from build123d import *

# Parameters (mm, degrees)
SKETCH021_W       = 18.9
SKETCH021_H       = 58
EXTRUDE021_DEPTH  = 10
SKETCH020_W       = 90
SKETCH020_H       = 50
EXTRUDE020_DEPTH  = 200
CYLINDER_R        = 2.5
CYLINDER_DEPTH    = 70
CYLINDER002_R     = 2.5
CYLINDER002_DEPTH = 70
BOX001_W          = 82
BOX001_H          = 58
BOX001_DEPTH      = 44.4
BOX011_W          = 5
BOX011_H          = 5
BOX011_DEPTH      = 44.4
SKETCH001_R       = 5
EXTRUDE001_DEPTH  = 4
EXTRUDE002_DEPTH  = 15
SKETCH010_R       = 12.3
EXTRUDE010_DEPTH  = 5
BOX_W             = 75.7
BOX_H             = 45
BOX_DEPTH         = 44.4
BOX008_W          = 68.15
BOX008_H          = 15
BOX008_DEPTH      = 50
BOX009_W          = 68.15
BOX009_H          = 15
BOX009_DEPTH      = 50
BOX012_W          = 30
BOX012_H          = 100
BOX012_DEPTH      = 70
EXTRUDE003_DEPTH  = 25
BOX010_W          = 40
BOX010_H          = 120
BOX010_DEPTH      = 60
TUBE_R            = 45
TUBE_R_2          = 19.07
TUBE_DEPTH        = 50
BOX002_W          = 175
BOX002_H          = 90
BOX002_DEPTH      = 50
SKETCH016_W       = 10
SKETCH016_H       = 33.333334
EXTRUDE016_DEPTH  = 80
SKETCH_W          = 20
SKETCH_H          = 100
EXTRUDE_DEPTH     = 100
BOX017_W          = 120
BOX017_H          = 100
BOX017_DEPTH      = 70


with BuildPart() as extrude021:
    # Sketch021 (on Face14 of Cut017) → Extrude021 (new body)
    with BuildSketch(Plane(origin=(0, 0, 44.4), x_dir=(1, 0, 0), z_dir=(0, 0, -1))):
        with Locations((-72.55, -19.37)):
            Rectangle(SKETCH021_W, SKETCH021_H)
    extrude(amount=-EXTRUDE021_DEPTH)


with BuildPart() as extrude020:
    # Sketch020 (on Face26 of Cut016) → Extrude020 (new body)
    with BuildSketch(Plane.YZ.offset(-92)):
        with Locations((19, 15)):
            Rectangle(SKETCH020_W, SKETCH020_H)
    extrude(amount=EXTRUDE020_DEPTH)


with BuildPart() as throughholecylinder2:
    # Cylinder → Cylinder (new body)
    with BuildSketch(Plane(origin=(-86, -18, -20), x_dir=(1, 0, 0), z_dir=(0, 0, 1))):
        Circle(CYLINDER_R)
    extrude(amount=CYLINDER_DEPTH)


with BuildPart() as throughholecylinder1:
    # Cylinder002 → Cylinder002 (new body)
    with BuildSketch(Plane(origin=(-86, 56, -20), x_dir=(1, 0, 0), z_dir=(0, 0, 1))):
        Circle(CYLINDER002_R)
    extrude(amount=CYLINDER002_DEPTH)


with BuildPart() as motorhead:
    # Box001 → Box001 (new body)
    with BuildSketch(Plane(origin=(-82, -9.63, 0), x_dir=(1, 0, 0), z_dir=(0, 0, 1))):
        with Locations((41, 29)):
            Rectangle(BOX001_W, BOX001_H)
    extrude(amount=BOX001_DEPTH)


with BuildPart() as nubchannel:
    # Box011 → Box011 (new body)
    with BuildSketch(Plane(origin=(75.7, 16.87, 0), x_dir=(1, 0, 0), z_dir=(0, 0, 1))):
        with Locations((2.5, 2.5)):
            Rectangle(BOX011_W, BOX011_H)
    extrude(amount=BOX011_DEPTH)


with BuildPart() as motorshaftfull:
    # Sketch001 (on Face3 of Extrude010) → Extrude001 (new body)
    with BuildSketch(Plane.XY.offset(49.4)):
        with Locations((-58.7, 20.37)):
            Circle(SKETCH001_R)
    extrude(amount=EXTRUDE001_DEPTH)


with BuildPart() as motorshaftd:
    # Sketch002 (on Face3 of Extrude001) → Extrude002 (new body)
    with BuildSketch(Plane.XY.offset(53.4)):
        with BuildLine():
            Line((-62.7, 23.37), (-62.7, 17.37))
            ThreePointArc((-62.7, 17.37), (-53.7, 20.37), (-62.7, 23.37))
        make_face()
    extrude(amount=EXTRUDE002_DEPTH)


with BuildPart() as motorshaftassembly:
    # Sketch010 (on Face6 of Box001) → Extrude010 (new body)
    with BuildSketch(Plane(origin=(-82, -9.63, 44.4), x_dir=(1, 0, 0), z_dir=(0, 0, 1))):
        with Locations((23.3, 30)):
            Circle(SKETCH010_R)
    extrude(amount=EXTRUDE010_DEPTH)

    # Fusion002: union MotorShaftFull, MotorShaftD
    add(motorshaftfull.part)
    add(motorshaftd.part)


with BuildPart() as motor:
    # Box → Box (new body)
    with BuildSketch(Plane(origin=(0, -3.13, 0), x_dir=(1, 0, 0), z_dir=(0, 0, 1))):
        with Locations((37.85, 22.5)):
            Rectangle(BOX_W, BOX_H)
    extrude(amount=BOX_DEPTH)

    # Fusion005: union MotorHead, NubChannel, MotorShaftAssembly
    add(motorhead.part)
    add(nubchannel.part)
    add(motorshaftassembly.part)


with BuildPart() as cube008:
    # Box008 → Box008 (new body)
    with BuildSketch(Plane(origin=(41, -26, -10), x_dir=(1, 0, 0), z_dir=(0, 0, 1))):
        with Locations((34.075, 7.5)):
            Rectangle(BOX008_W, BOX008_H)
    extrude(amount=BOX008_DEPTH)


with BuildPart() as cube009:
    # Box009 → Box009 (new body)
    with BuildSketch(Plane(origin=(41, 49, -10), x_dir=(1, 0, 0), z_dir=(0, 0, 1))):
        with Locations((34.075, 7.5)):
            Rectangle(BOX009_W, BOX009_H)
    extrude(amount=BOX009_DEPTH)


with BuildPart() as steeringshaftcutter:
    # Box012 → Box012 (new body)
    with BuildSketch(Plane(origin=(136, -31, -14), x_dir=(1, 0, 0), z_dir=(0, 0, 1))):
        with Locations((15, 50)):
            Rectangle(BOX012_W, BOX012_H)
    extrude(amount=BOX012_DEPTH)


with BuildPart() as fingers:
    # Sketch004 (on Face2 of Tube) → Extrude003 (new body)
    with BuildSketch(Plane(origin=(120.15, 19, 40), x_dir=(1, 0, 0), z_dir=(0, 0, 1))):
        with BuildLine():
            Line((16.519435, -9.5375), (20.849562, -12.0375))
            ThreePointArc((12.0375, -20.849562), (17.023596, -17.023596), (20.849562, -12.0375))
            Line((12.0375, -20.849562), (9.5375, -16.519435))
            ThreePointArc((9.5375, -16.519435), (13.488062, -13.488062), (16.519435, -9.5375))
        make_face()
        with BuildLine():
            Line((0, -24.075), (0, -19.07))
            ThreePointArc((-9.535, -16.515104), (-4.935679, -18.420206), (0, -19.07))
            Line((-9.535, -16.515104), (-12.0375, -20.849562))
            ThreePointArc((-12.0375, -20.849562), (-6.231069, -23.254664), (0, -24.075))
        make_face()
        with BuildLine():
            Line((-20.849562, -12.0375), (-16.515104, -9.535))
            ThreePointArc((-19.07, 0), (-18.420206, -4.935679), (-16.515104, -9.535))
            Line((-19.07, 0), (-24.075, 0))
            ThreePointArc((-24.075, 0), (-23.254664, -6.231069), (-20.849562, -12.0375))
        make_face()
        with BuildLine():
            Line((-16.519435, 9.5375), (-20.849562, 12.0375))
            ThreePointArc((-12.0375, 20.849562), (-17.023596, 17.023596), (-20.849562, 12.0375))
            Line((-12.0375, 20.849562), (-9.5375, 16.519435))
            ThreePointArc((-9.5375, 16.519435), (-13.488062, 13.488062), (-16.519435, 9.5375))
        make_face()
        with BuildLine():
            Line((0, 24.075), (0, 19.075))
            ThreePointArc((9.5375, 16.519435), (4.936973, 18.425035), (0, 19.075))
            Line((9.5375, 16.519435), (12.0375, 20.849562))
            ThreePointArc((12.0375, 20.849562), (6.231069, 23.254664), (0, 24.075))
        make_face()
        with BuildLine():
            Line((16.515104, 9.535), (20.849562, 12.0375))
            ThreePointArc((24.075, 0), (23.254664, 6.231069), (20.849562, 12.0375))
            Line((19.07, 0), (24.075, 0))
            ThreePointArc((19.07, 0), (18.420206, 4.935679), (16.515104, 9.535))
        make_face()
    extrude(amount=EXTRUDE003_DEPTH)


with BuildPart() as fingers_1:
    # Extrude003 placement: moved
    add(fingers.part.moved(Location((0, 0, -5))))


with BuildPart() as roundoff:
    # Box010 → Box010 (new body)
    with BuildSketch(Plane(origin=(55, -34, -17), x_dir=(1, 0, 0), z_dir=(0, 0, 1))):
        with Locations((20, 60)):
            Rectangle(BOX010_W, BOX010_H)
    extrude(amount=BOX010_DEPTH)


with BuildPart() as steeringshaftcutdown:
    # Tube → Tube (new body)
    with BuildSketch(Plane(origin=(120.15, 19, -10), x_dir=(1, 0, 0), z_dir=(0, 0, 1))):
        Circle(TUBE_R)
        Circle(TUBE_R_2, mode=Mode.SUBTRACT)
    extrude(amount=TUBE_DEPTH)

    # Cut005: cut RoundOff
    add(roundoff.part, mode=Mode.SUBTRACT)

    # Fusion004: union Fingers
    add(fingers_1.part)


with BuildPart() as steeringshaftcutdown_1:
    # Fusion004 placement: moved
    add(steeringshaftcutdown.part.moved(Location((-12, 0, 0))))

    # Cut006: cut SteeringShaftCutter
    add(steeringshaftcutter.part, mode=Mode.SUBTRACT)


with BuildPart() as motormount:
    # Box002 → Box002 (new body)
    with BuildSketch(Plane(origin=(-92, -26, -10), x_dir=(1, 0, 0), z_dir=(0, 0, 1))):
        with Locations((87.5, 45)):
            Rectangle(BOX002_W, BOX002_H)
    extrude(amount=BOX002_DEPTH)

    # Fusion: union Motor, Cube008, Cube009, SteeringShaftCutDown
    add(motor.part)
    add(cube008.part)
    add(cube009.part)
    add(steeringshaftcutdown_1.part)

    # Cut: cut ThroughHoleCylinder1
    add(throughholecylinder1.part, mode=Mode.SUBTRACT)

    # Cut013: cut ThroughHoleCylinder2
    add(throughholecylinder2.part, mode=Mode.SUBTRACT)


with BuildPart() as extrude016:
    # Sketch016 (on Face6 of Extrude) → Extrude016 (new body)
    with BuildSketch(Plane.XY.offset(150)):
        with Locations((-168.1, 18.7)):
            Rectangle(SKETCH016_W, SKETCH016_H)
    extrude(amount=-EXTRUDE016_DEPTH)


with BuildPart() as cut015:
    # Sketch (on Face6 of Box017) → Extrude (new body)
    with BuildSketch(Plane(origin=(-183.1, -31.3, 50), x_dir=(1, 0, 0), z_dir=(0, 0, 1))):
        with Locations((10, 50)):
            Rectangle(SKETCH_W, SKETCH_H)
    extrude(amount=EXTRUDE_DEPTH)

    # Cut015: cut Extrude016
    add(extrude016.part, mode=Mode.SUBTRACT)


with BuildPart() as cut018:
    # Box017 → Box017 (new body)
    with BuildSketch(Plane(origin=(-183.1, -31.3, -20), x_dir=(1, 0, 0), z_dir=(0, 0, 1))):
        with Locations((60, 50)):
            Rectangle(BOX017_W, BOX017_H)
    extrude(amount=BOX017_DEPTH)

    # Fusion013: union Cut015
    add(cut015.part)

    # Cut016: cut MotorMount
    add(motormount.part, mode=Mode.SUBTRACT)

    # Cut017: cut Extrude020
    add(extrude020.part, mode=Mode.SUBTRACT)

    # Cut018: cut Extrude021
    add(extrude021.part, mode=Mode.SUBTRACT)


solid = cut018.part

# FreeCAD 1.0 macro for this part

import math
import FreeCAD as App
import Part
import Sketcher
from FreeCAD import Vector
Q = App.Units.Quantity


def add_polygon(sketch, points):
    """Adds a closed chain of lines whose ends are joined by coincident constraints."""
    first, n = sketch.GeometryCount, len(points)
    for a, b in zip(points, points[1:] + points[:1]):
        sketch.addGeometry(Part.LineSegment(App.Vector(*a, 0), App.Vector(*b, 0)), False)
    for i in range(n):
        sketch.addConstraint(Sketcher.Constraint("Coincident", first + i, 2, first + (i + 1) % n, 1))

doc = App.newDocument("Part")
body = doc.addObject("PartDesign::Body", "Body")

sketch1 = doc.addObject("Sketcher::SketchObject", "Sketch")
body.addObject(sketch1)
sketch1.AttachmentSupport = (doc.XY_Plane, [""])
sketch1.MapMode = "FlatFace"
sketch1.AttachmentOffset = App.Placement(Vector(0, 0, 44.4), App.Rotation())
add_polygon(sketch1, [(-82, -10), (-82, 48), (-63, 48), (-63, -10)])
sketch1.addConstraint([
    Sketcher.Constraint("Vertical", 0),
    Sketcher.Constraint("Horizontal", 1),
    Sketcher.Constraint("Vertical", 2),
    Sketcher.Constraint("Horizontal", 3),
    Sketcher.Constraint("DistanceY", 0, 1, 0, 2, 58.0),
    Sketcher.Constraint("DistanceX", 1, 1, 1, 2, 18.9),
    Sketcher.Constraint("DistanceX", 0, 2, -1, 1, 82.0),
    Sketcher.Constraint("DistanceY", -1, 1, 0, 2, 48.37),
])
pad1 = doc.addObject("PartDesign::Pad", "Pad")
body.addObject(pad1)
pad1.Profile = sketch1
pad1.Length = 10
body2 = doc.addObject("PartDesign::Body", "Body001")

sketch2 = doc.addObject("Sketcher::SketchObject", "Sketch001")
body2.addObject(sketch2)
sketch2.AttachmentSupport = (doc.getObject("YZ_Plane001"), [""])
sketch2.MapMode = "FlatFace"
sketch2.AttachmentOffset = App.Placement(Vector(0, 0, -92), App.Rotation())
add_polygon(sketch2, [(-26, 40), (-26, -10), (64, -10), (64, 40)])
sketch2.addConstraint([
    Sketcher.Constraint("Vertical", 0),
    Sketcher.Constraint("Horizontal", 1),
    Sketcher.Constraint("Vertical", 2),
    Sketcher.Constraint("Horizontal", 3),
    Sketcher.Constraint("DistanceX", 1, 1, 1, 2, 90.0),
    Sketcher.Constraint("DistanceY", 0, 2, 0, 1, 50.0),
    Sketcher.Constraint("DistanceX", 0, 2, -1, 1, 26.0),
    Sketcher.Constraint("DistanceY", 0, 2, -1, 1, 10.0),
])
pad2 = doc.addObject("PartDesign::Pad", "Pad001")
body2.addObject(pad2)
pad2.Profile = sketch2
pad2.Length = 200
body3 = doc.addObject("PartDesign::Body", "Body002")

sketch3 = doc.addObject("Sketcher::SketchObject", "Sketch002")
body3.addObject(sketch3)
sketch3.AttachmentSupport = (doc.getObject("XY_Plane002"), [""])
sketch3.MapMode = "FlatFace"
sketch3.AttachmentOffset = App.Placement(Vector(0, 0, -20), App.Rotation())
sketch3.addGeometry(Part.Circle(Vector(-86, -18, 0), Vector(0, 0, 1), 2.5), False)
sketch3.addConstraint([
    Sketcher.Constraint("Diameter", 0, 5.0),
    Sketcher.Constraint("DistanceX", 0, 3, -1, 1, 86.0),
    Sketcher.Constraint("DistanceY", 0, 3, -1, 1, 18.0),
])
pad3 = doc.addObject("PartDesign::Pad", "Pad002")
body3.addObject(pad3)
pad3.Profile = sketch3
pad3.Length = 70
body4 = doc.addObject("PartDesign::Body", "Body003")

sketch4 = doc.addObject("Sketcher::SketchObject", "Sketch003")
body4.addObject(sketch4)
sketch4.AttachmentSupport = (doc.getObject("XY_Plane003"), [""])
sketch4.MapMode = "FlatFace"
sketch4.AttachmentOffset = App.Placement(Vector(0, 0, -20), App.Rotation())
sketch4.addGeometry(Part.Circle(Vector(-86, 56, 0), Vector(0, 0, 1), 2.5), False)
sketch4.addConstraint([
    Sketcher.Constraint("Diameter", 0, 5.0),
    Sketcher.Constraint("DistanceX", 0, 3, -1, 1, 86.0),
    Sketcher.Constraint("DistanceY", -1, 1, 0, 3, 56.0),
])
pad4 = doc.addObject("PartDesign::Pad", "Pad003")
body4.addObject(pad4)
pad4.Profile = sketch4
pad4.Length = 70
body5 = doc.addObject("PartDesign::Body", "Body004")

sketch5 = doc.addObject("Sketcher::SketchObject", "Sketch004")
body5.addObject(sketch5)
sketch5.AttachmentSupport = (doc.getObject("XY_Plane004"), [""])
sketch5.MapMode = "FlatFace"
add_polygon(sketch5, [(-82, 48), (-82, -10), (0, -10), (0, 48)])
sketch5.addConstraint([
    Sketcher.Constraint("Vertical", 0),
    Sketcher.Constraint("Horizontal", 1),
    Sketcher.Constraint("Vertical", 2),
    Sketcher.Constraint("Horizontal", 3),
    Sketcher.Constraint("PointOnObject", 1, 2, -2),
    Sketcher.Constraint("DistanceX", 1, 1, 1, 2, 82.0),
    Sketcher.Constraint("DistanceY", 0, 2, 0, 1, 58.0),
    Sketcher.Constraint("DistanceY", 0, 2, -1, 1, 9.63),
])
pad5 = doc.addObject("PartDesign::Pad", "Pad004")
body5.addObject(pad5)
pad5.Profile = sketch5
pad5.Length = 44.4
body6 = doc.addObject("PartDesign::Body", "Body005")

sketch6 = doc.addObject("Sketcher::SketchObject", "Sketch005")
body6.addObject(sketch6)
sketch6.AttachmentSupport = (doc.getObject("XY_Plane005"), [""])
sketch6.MapMode = "FlatFace"
add_polygon(sketch6, [(76, 22), (76, 17), (81, 17), (81, 22)])
sketch6.addConstraint([
    Sketcher.Constraint("Vertical", 0),
    Sketcher.Constraint("Horizontal", 1),
    Sketcher.Constraint("Vertical", 2),
    Sketcher.Constraint("Horizontal", 3),
    Sketcher.Constraint("Equal", 3, 0),
    Sketcher.Constraint("DistanceX", 1, 1, 1, 2, 5.0),
    Sketcher.Constraint("DistanceX", -1, 1, 0, 2, 75.7),
    Sketcher.Constraint("DistanceY", -1, 1, 0, 2, 16.87),
])
pad6 = doc.addObject("PartDesign::Pad", "Pad005")
body6.addObject(pad6)
pad6.Profile = sketch6
pad6.Length = 44.4
body7 = doc.addObject("PartDesign::Body", "Body006")

sketch7 = doc.addObject("Sketcher::SketchObject", "Sketch006")
body7.addObject(sketch7)
sketch7.AttachmentSupport = (doc.getObject("XY_Plane006"), [""])
sketch7.MapMode = "FlatFace"
sketch7.AttachmentOffset = App.Placement(Vector(0, 0, 49.4), App.Rotation())
sketch7.addGeometry(Part.Circle(Vector(-59, 20, 0), Vector(0, 0, 1), 5), False)
sketch7.addConstraint([
    Sketcher.Constraint("Diameter", 0, 10.0),
    Sketcher.Constraint("DistanceX", 0, 3, -1, 1, 58.7),
    Sketcher.Constraint("DistanceY", -1, 1, 0, 3, 20.37),
])
pad7 = doc.addObject("PartDesign::Pad", "Pad006")
body7.addObject(pad7)
pad7.Profile = sketch7
pad7.Length = 4
body8 = doc.addObject("PartDesign::Body", "Body007")

sketch8 = doc.addObject("Sketcher::SketchObject", "Sketch007")
body8.addObject(sketch8)
sketch8.AttachmentSupport = (doc.getObject("XY_Plane007"), [""])
sketch8.MapMode = "FlatFace"
sketch8.AttachmentOffset = App.Placement(Vector(0, 0, 53.4), App.Rotation())
sketch8.addGeometry([
    Part.LineSegment(Vector(-63, 23, 0), Vector(-63, 17, 0)),
    Part.ArcOfCircle(Part.Circle(Vector(-59, 20, 0), Vector(0, 0, 1), 5), math.radians(-143), math.radians(143)),
], False)
sketch8.addConstraint([
    Sketcher.Constraint("Coincident", 0, 1, 1, 2),
    Sketcher.Constraint("Coincident", 1, 1, 0, 2),
    Sketcher.Constraint("Vertical", 0),
    Sketcher.Constraint("Radius", 1, 5.0),
    Sketcher.Constraint("DistanceY", 0, 2, 0, 1, 6.0),
    Sketcher.Constraint("DistanceX", 1, 3, -1, 1, 58.7),
    Sketcher.Constraint("DistanceY", -1, 1, 1, 3, 20.37),
])
pad8 = doc.addObject("PartDesign::Pad", "Pad007")
body8.addObject(pad8)
pad8.Profile = sketch8
pad8.Length = 15
body9 = doc.addObject("PartDesign::Body", "Body008")

sketch9 = doc.addObject("Sketcher::SketchObject", "Sketch008")
body9.addObject(sketch9)
sketch9.AttachmentSupport = (doc.getObject("XY_Plane008"), [""])
sketch9.MapMode = "FlatFace"
sketch9.AttachmentOffset = App.Placement(Vector(0, 0, 44.4), App.Rotation())
sketch9.addGeometry(Part.Circle(Vector(-59, 20, 0), Vector(0, 0, 1), 12), False)
sketch9.addConstraint([
    Sketcher.Constraint("Diameter", 0, 24.6),
    Sketcher.Constraint("DistanceX", 0, 3, -1, 1, 58.7),
    Sketcher.Constraint("DistanceY", -1, 1, 0, 3, 20.37),
])
pad9 = doc.addObject("PartDesign::Pad", "Pad008")
body9.addObject(pad9)
pad9.Profile = sketch9
pad9.Length = 5
doc.recompute()

boolean = doc.addObject("PartDesign::Boolean", "Boolean")
body9.addObject(boolean)
boolean.Type = "Fuse"
boolean.addObjects([body7])
doc.recompute()

boolean2 = doc.addObject("PartDesign::Boolean", "Boolean001")
body9.addObject(boolean2)
boolean2.Type = "Fuse"
boolean2.addObjects([body8])
body10 = doc.addObject("PartDesign::Body", "Body009")

sketch10 = doc.addObject("Sketcher::SketchObject", "Sketch009")
body10.addObject(sketch10)
sketch10.AttachmentSupport = (doc.getObject("XY_Plane009"), [""])
sketch10.MapMode = "FlatFace"
add_polygon(sketch10, [(0, 42), (0, -3), (76, -3), (76, 42)])
sketch10.addConstraint([
    Sketcher.Constraint("Vertical", 0),
    Sketcher.Constraint("Horizontal", 1),
    Sketcher.Constraint("Vertical", 2),
    Sketcher.Constraint("Horizontal", 3),
    Sketcher.Constraint("PointOnObject", 0, 2, -2),
    Sketcher.Constraint("DistanceY", 0, 2, 0, 1, 45.0),
    Sketcher.Constraint("DistanceX", 1, 1, 1, 2, 75.7),
    Sketcher.Constraint("DistanceY", 0, 2, -1, 1, 3.13),
])
pad10 = doc.addObject("PartDesign::Pad", "Pad009")
body10.addObject(pad10)
pad10.Profile = sketch10
pad10.Length = 44.4
doc.recompute()

boolean3 = doc.addObject("PartDesign::Boolean", "Boolean002")
body10.addObject(boolean3)
boolean3.Type = "Fuse"
boolean3.addObjects([body5])
doc.recompute()

boolean4 = doc.addObject("PartDesign::Boolean", "Boolean003")
body10.addObject(boolean4)
boolean4.Type = "Fuse"
boolean4.addObjects([body6])
doc.recompute()

boolean5 = doc.addObject("PartDesign::Boolean", "Boolean004")
body10.addObject(boolean5)
boolean5.Type = "Fuse"
boolean5.addObjects([body9])
body11 = doc.addObject("PartDesign::Body", "Body010")

sketch11 = doc.addObject("Sketcher::SketchObject", "Sketch010")
body11.addObject(sketch11)
sketch11.AttachmentSupport = (doc.getObject("XY_Plane010"), [""])
sketch11.MapMode = "FlatFace"
sketch11.AttachmentOffset = App.Placement(Vector(0, 0, -10), App.Rotation())
add_polygon(sketch11, [(41, -11), (41, -26), (109, -26), (109, -11)])
sketch11.addConstraint([
    Sketcher.Constraint("Vertical", 0),
    Sketcher.Constraint("Horizontal", 1),
    Sketcher.Constraint("Vertical", 2),
    Sketcher.Constraint("Horizontal", 3),
    Sketcher.Constraint("DistanceY", 0, 2, 0, 1, 15.0),
    Sketcher.Constraint("DistanceX", -1, 1, 0, 2, 41.0),
    Sketcher.Constraint("DistanceY", 0, 2, -1, 1, 26.0),
    Sketcher.Constraint("DistanceX", 1, 1, 1, 2, 68.15),
])
pad11 = doc.addObject("PartDesign::Pad", "Pad010")
body11.addObject(pad11)
pad11.Profile = sketch11
pad11.Length = 50
body12 = doc.addObject("PartDesign::Body", "Body011")

sketch12 = doc.addObject("Sketcher::SketchObject", "Sketch011")
body12.addObject(sketch12)
sketch12.AttachmentSupport = (doc.getObject("XY_Plane011"), [""])
sketch12.MapMode = "FlatFace"
sketch12.AttachmentOffset = App.Placement(Vector(0, 0, -10), App.Rotation())
add_polygon(sketch12, [(41, 64), (41, 49), (109, 49), (109, 64)])
sketch12.addConstraint([
    Sketcher.Constraint("Vertical", 0),
    Sketcher.Constraint("Horizontal", 1),
    Sketcher.Constraint("Vertical", 2),
    Sketcher.Constraint("Horizontal", 3),
    Sketcher.Constraint("DistanceY", 0, 2, 0, 1, 15.0),
    Sketcher.Constraint("DistanceX", -1, 1, 0, 2, 41.0),
    Sketcher.Constraint("DistanceY", -1, 1, 0, 2, 49.0),
    Sketcher.Constraint("DistanceX", 1, 1, 1, 2, 68.15),
])
pad12 = doc.addObject("PartDesign::Pad", "Pad011")
body12.addObject(pad12)
pad12.Profile = sketch12
pad12.Length = 50
body13 = doc.addObject("PartDesign::Body", "Body012")

sketch13 = doc.addObject("Sketcher::SketchObject", "Sketch012")
body13.addObject(sketch13)
sketch13.AttachmentSupport = (doc.getObject("XY_Plane012"), [""])
sketch13.MapMode = "FlatFace"
sketch13.AttachmentOffset = App.Placement(Vector(0, 0, -14), App.Rotation())
add_polygon(sketch13, [(136, 69), (136, -31), (166, -31), (166, 69)])
sketch13.addConstraint([
    Sketcher.Constraint("Vertical", 0),
    Sketcher.Constraint("Horizontal", 1),
    Sketcher.Constraint("Vertical", 2),
    Sketcher.Constraint("Horizontal", 3),
    Sketcher.Constraint("DistanceX", 1, 1, 1, 2, 30.0),
    Sketcher.Constraint("DistanceY", 0, 2, 0, 1, 100.0),
    Sketcher.Constraint("DistanceX", -1, 1, 0, 2, 136.0),
    Sketcher.Constraint("DistanceY", 0, 2, -1, 1, 31.0),
])
pad13 = doc.addObject("PartDesign::Pad", "Pad012")
body13.addObject(pad13)
pad13.Profile = sketch13
pad13.Length = 70
body14 = doc.addObject("PartDesign::Body", "Body013")
body14.AllowCompound = True

sketch14 = doc.addObject("Sketcher::SketchObject", "Sketch013")
body14.addObject(sketch14)
sketch14.AttachmentSupport = (doc.getObject("XY_Plane013"), [""])
sketch14.MapMode = "FlatFace"
sketch14.AttachmentOffset = App.Placement(Vector(0, 0, 40), App.Rotation())
sketch14.addGeometry([
    Part.LineSegment(Vector(141, 7, 0), Vector(136.7, 9.5, 0)),
    Part.ArcOfCircle(Part.Circle(Vector(120.1, 19, 0), Vector(0, 0, 1), 19.1), math.radians(-60), math.radians(-30)),
    Part.LineSegment(Vector(129.7, 2.5, 0), Vector(132.2, -1.8, 0)),
    Part.ArcOfCircle(Part.Circle(Vector(120.1, 19, 0), Vector(0, 0, 1), 24.1), math.radians(-60), math.radians(-30)),
    Part.LineSegment(Vector(120.2, -5.1, 0), Vector(120.2, -0.1, 0)),
    Part.ArcOfCircle(Part.Circle(Vector(120.1, 19, 0), Vector(0, 0, 1), 19.1), math.radians(-120), math.radians(-90)),
    Part.LineSegment(Vector(110.6, 2.5, 0), Vector(108.1, -1.8, 0)),
    Part.ArcOfCircle(Part.Circle(Vector(120.2, 19, 0), Vector(0, 0, 1), 24.1), math.radians(-120), math.radians(-90)),
    Part.LineSegment(Vector(99.3, 7, 0), Vector(103.6, 9.5, 0)),
    Part.ArcOfCircle(Part.Circle(Vector(120.1, 19, 0), Vector(0, 0, 1), 19.1), math.radians(180), math.radians(210)),
    Part.LineSegment(Vector(101.1, 19, 0), Vector(96.1, 19, 0)),
    Part.ArcOfCircle(Part.Circle(Vector(120.2, 19, 0), Vector(0, 0, 1), 24.1), math.radians(-180), math.radians(-150)),
    Part.LineSegment(Vector(99.3, 31, 0), Vector(103.6, 28.5, 0)),
    Part.ArcOfCircle(Part.Circle(Vector(120.2, 19, 0), Vector(0, 0, 1), 19.1), math.radians(120), math.radians(150)),
    Part.LineSegment(Vector(110.6, 35.5, 0), Vector(108.1, 39.8, 0)),
    Part.ArcOfCircle(Part.Circle(Vector(120.2, 19, 0), Vector(0, 0, 1), 24.1), math.radians(120), math.radians(150)),
    Part.LineSegment(Vector(120.2, 43.1, 0), Vector(120.2, 38.1, 0)),
    Part.ArcOfCircle(Part.Circle(Vector(120.1, 19, 0), Vector(0, 0, 1), 19.1), math.radians(60), math.radians(90)),
    Part.LineSegment(Vector(129.7, 35.5, 0), Vector(132.2, 39.8, 0)),
    Part.ArcOfCircle(Part.Circle(Vector(120.1, 19, 0), Vector(0, 0, 1), 24.1), math.radians(60), math.radians(90)),
    Part.LineSegment(Vector(141, 31, 0), Vector(136.7, 28.5, 0)),
    Part.ArcOfCircle(Part.Circle(Vector(120.2, 19, 0), Vector(0, 0, 1), 19.1), math.radians(0), math.radians(30)),
    Part.LineSegment(Vector(139.2, 19, 0), Vector(144.2, 19, 0)),
    Part.ArcOfCircle(Part.Circle(Vector(120.1, 19, 0), Vector(0, 0, 1), 24.1), math.radians(0), math.radians(30)),
], False)
sketch14.addConstraint([
    Sketcher.Constraint("Coincident", 0, 2, 1, 2),
    Sketcher.Constraint("Coincident", 1, 1, 2, 1),
    Sketcher.Constraint("Coincident", 2, 2, 3, 1),
    Sketcher.Constraint("Coincident", 3, 2, 0, 1),
    Sketcher.Constraint("Coincident", 4, 2, 5, 2),
    Sketcher.Constraint("Coincident", 5, 1, 6, 1),
    Sketcher.Constraint("Coincident", 6, 2, 7, 1),
    Sketcher.Constraint("Coincident", 7, 2, 4, 1),
    Sketcher.Constraint("Coincident", 8, 2, 9, 2),
    Sketcher.Constraint("Coincident", 9, 1, 10, 1),
    Sketcher.Constraint("Coincident", 10, 2, 11, 1),
    Sketcher.Constraint("Coincident", 11, 2, 8, 1),
    Sketcher.Constraint("Coincident", 12, 2, 13, 2),
    Sketcher.Constraint("Coincident", 13, 1, 14, 1),
    Sketcher.Constraint("Coincident", 14, 2, 15, 1),
    Sketcher.Constraint("Coincident", 15, 2, 12, 1),
    Sketcher.Constraint("Coincident", 16, 2, 17, 2),
    Sketcher.Constraint("Coincident", 17, 1, 18, 1),
    Sketcher.Constraint("Coincident", 18, 2, 19, 1),
    Sketcher.Constraint("Coincident", 19, 2, 16, 1),
    Sketcher.Constraint("Coincident", 20, 2, 21, 2),
    Sketcher.Constraint("Coincident", 21, 1, 22, 1),
    Sketcher.Constraint("Coincident", 22, 2, 23, 1),
    Sketcher.Constraint("Coincident", 23, 2, 20, 1),
    Sketcher.Constraint("Vertical", 4),
    Sketcher.Constraint("Horizontal", 10),
    Sketcher.Constraint("Vertical", 16),
    Sketcher.Constraint("Horizontal", 22),
    Sketcher.Constraint("Coincident", 3, 3, 1, 3),
    Sketcher.Constraint("Coincident", 7, 3, 1, 3),
    Sketcher.Constraint("Coincident", 11, 3, 3, 3),
    Sketcher.Constraint("Coincident", 13, 3, 1, 3),
    Sketcher.Constraint("Coincident", 15, 3, 1, 3),
    Sketcher.Constraint("Coincident", 17, 3, 5, 3),
    Sketcher.Constraint("Coincident", 19, 3, 3, 3),
    Sketcher.Constraint("Coincident", 21, 3, 11, 3),
    Sketcher.Constraint("Coincident", 23, 3, 1, 3),
    Sketcher.Constraint("Equal", 5, 9),
    Sketcher.Constraint("Equal", 7, 11),
    Sketcher.Constraint("Equal", 1, 13),
    Sketcher.Constraint("Equal", 3, 15),
    Sketcher.Constraint("Equal", 11, 19),
    Sketcher.Constraint("Equal", 9, 21),
    Sketcher.Constraint("Equal", 19, 23),
    Sketcher.Constraint("Perpendicular", 0, 6),
    Sketcher.Constraint("Perpendicular", 2, 8),
    Sketcher.Constraint("Perpendicular", 6, 12),
    Sketcher.Constraint("Perpendicular", 8, 14),
    Sketcher.Constraint("Perpendicular", 12, 18),
    Sketcher.Constraint("Perpendicular", 14, 20),
    Sketcher.Constraint("Horizontal", 9, 3, 13, 3),
    Sketcher.Constraint("Horizontal", 2, 2, 6, 2),
    Sketcher.Constraint("Horizontal", 23, 3, 9, 1),
    Sketcher.Constraint("Horizontal", 3, 2, 11, 2),
    Sketcher.Constraint("Horizontal", 13, 1, 17, 1),
    Sketcher.Constraint("Horizontal", 14, 2, 18, 2),
    Sketcher.Constraint("Horizontal", 10, 2, 21, 1),
    Sketcher.Constraint("Horizontal", 15, 2, 23, 2),
    Sketcher.Constraint("Vertical", 1, 3, 5, 3),
    Sketcher.Constraint("Vertical", 19, 3, 4, 2),
    Sketcher.Constraint("Vertical", 6, 2, 14, 2),
    Sketcher.Constraint("Vertical", 11, 2, 15, 2),
    Sketcher.Constraint("Vertical", 7, 2, 16, 2),
    Sketcher.Constraint("Vertical", 1, 1, 17, 1),
    Sketcher.Constraint("Vertical", 2, 2, 18, 2),
    Sketcher.Constraint("Equal", 10, 22),
    Sketcher.Constraint("Equal", 22, 4),
    Sketcher.Constraint("DistanceY", 16, 2, 16, 1, 5.0),
    Sketcher.Constraint("Angle", 0, Q("150 deg")),
    Sketcher.Constraint("DistanceY", -1, 1, 3, 3, 19.0),
    Sketcher.Constraint("Radius", 3, 24.075001),
    Sketcher.Constraint("DistanceX", 10, 2, 10, 1, 5.005),
    Sketcher.Constraint("DistanceX", -1, 1, 3, 3, 120.15),
    Sketcher.Constraint("DistanceX", 10, 2, 5, 1, 14.54),
    Sketcher.Constraint("DistanceY", -1, 1, 8, 2, 9.465),
])
pad14 = doc.addObject("PartDesign::Pad", "Pad013")
body14.addObject(pad14)
pad14.Profile = sketch14
pad14.Length = 25
body15 = doc.addObject("PartDesign::Body", "Body014")
body15.AllowCompound = True
doc.recompute()

body14.Placement = App.Placement(Vector(0, 0, -5), App.Rotation(Vector(0, 0, 1), 0))
boolean6 = doc.addObject("PartDesign::Boolean", "Boolean005")
body15.addObject(boolean6)
boolean6.Type = "Fuse"
boolean6.addObjects([body14])
body16 = doc.addObject("PartDesign::Body", "Body015")

sketch15 = doc.addObject("Sketcher::SketchObject", "Sketch014")
body16.addObject(sketch15)
sketch15.AttachmentSupport = (doc.getObject("XY_Plane015"), [""])
sketch15.MapMode = "FlatFace"
sketch15.AttachmentOffset = App.Placement(Vector(0, 0, -17), App.Rotation())
add_polygon(sketch15, [(55, 86), (55, -34), (95, -34), (95, 86)])
sketch15.addConstraint([
    Sketcher.Constraint("Vertical", 0),
    Sketcher.Constraint("Horizontal", 1),
    Sketcher.Constraint("Vertical", 2),
    Sketcher.Constraint("Horizontal", 3),
    Sketcher.Constraint("DistanceX", 1, 1, 1, 2, 40.0),
    Sketcher.Constraint("DistanceY", 0, 2, 0, 1, 120.0),
    Sketcher.Constraint("DistanceX", -1, 1, 0, 2, 55.0),
    Sketcher.Constraint("DistanceY", 0, 2, -1, 1, 34.0),
])
pad15 = doc.addObject("PartDesign::Pad", "Pad014")
body16.addObject(pad15)
pad15.Profile = sketch15
pad15.Length = 60
body17 = doc.addObject("PartDesign::Body", "Body016")

sketch16 = doc.addObject("Sketcher::SketchObject", "Sketch015")
body17.addObject(sketch16)
sketch16.AttachmentSupport = (doc.getObject("XY_Plane016"), [""])
sketch16.MapMode = "FlatFace"
sketch16.AttachmentOffset = App.Placement(Vector(0, 0, -10), App.Rotation())
sketch16.addGeometry([
    Part.Circle(Vector(120, 19, 0), Vector(0, 0, 1), 45),
    Part.Circle(Vector(120, 19, 0), Vector(0, 0, 1), 19),
], False)
sketch16.addConstraint([
    Sketcher.Constraint("Coincident", 1, 3, 0, 3),
    Sketcher.Constraint("Diameter", 0, 90.0),
    Sketcher.Constraint("Diameter", 1, 38.14),
    Sketcher.Constraint("DistanceY", -1, 1, 0, 3, 19.0),
    Sketcher.Constraint("DistanceX", -1, 1, 0, 3, 120.15),
])
pad16 = doc.addObject("PartDesign::Pad", "Pad015")
body17.addObject(pad16)
pad16.Profile = sketch16
pad16.Length = 50
doc.recompute()

boolean7 = doc.addObject("PartDesign::Boolean", "Boolean006")
body17.addObject(boolean7)
boolean7.Type = "Cut"
boolean7.addObjects([body16])
doc.recompute()

boolean8 = doc.addObject("PartDesign::Boolean", "Boolean007")
body17.addObject(boolean8)
boolean8.Type = "Fuse"
boolean8.addObjects([body15])
body18 = doc.addObject("PartDesign::Body", "Body017")
doc.recompute()

body17.Placement = App.Placement(Vector(-12, 0, 0), App.Rotation(Vector(0, 0, 1), 0))
boolean9 = doc.addObject("PartDesign::Boolean", "Boolean008")
body18.addObject(boolean9)
boolean9.Type = "Fuse"
boolean9.addObjects([body17])
doc.recompute()

boolean10 = doc.addObject("PartDesign::Boolean", "Boolean009")
body18.addObject(boolean10)
boolean10.Type = "Cut"
boolean10.addObjects([body13])
body19 = doc.addObject("PartDesign::Body", "Body018")

sketch17 = doc.addObject("Sketcher::SketchObject", "Sketch016")
body19.addObject(sketch17)
sketch17.AttachmentSupport = (doc.getObject("XY_Plane018"), [""])
sketch17.MapMode = "FlatFace"
sketch17.AttachmentOffset = App.Placement(Vector(0, 0, -10), App.Rotation())
add_polygon(sketch17, [(-92, 64), (-92, -26), (83, -26), (83, 64)])
sketch17.addConstraint([
    Sketcher.Constraint("Vertical", 0),
    Sketcher.Constraint("Horizontal", 1),
    Sketcher.Constraint("Vertical", 2),
    Sketcher.Constraint("Horizontal", 3),
    Sketcher.Constraint("DistanceX", 1, 1, 1, 2, 175.0),
    Sketcher.Constraint("DistanceY", 0, 2, 0, 1, 90.0),
    Sketcher.Constraint("DistanceX", 0, 2, -1, 1, 92.0),
    Sketcher.Constraint("DistanceY", 0, 2, -1, 1, 26.0),
])
pad17 = doc.addObject("PartDesign::Pad", "Pad016")
body19.addObject(pad17)
pad17.Profile = sketch17
pad17.Length = 50
doc.recompute()

boolean11 = doc.addObject("PartDesign::Boolean", "Boolean010")
body19.addObject(boolean11)
boolean11.Type = "Fuse"
boolean11.addObjects([body10])
doc.recompute()

boolean12 = doc.addObject("PartDesign::Boolean", "Boolean011")
body19.addObject(boolean12)
boolean12.Type = "Fuse"
boolean12.addObjects([body11])
doc.recompute()

boolean13 = doc.addObject("PartDesign::Boolean", "Boolean012")
body19.addObject(boolean13)
boolean13.Type = "Fuse"
boolean13.addObjects([body12])
doc.recompute()

boolean14 = doc.addObject("PartDesign::Boolean", "Boolean013")
body19.addObject(boolean14)
boolean14.Type = "Fuse"
boolean14.addObjects([body18])
doc.recompute()

boolean15 = doc.addObject("PartDesign::Boolean", "Boolean014")
body19.addObject(boolean15)
boolean15.Type = "Cut"
boolean15.addObjects([body4])
doc.recompute()

boolean16 = doc.addObject("PartDesign::Boolean", "Boolean015")
body19.addObject(boolean16)
boolean16.Type = "Cut"
boolean16.addObjects([body3])
body20 = doc.addObject("PartDesign::Body", "Body019")

sketch18 = doc.addObject("Sketcher::SketchObject", "Sketch017")
body20.addObject(sketch18)
sketch18.AttachmentSupport = (doc.getObject("XY_Plane019"), [""])
sketch18.MapMode = "FlatFace"
sketch18.AttachmentOffset = App.Placement(Vector(0, 0, 150), App.Rotation())
add_polygon(sketch18, [(-173, 35), (-173, 2), (-163, 2), (-163, 35)])
sketch18.addConstraint([
    Sketcher.Constraint("Vertical", 0),
    Sketcher.Constraint("Horizontal", 1),
    Sketcher.Constraint("Vertical", 2),
    Sketcher.Constraint("Horizontal", 3),
    Sketcher.Constraint("DistanceX", 1, 1, 1, 2, 10.0),
    Sketcher.Constraint("DistanceX", 0, 2, -1, 1, 173.1),
    Sketcher.Constraint("DistanceY", 0, 2, 0, 1, 33.333334),
    Sketcher.Constraint("DistanceY", -1, 1, 0, 2, 2.033333),
])
pad18 = doc.addObject("PartDesign::Pad", "Pad017")
body20.addObject(pad18)
pad18.Profile = sketch18
pad18.Length = 80
pad18.Reversed = True
body21 = doc.addObject("PartDesign::Body", "Body020")

sketch19 = doc.addObject("Sketcher::SketchObject", "Sketch018")
body21.addObject(sketch19)
sketch19.AttachmentSupport = (doc.getObject("XY_Plane020"), [""])
sketch19.MapMode = "FlatFace"
sketch19.AttachmentOffset = App.Placement(Vector(0, 0, 50), App.Rotation())
add_polygon(sketch19, [(-183, 69), (-183, -31), (-163, -31), (-163, 69)])
sketch19.addConstraint([
    Sketcher.Constraint("Vertical", 0),
    Sketcher.Constraint("Horizontal", 1),
    Sketcher.Constraint("Vertical", 2),
    Sketcher.Constraint("Horizontal", 3),
    Sketcher.Constraint("DistanceX", 1, 1, 1, 2, 20.0),
    Sketcher.Constraint("DistanceY", 0, 2, 0, 1, 100.0),
    Sketcher.Constraint("DistanceX", 0, 2, -1, 1, 183.1),
    Sketcher.Constraint("DistanceY", 0, 2, -1, 1, 31.3),
])
pad19 = doc.addObject("PartDesign::Pad", "Pad018")
body21.addObject(pad19)
pad19.Profile = sketch19
pad19.Length = 100
doc.recompute()

boolean17 = doc.addObject("PartDesign::Boolean", "Boolean016")
body21.addObject(boolean17)
boolean17.Type = "Cut"
boolean17.addObjects([body20])
body22 = doc.addObject("PartDesign::Body", "Body021")

sketch20 = doc.addObject("Sketcher::SketchObject", "Sketch019")
body22.addObject(sketch20)
sketch20.AttachmentSupport = (doc.getObject("XY_Plane021"), [""])
sketch20.MapMode = "FlatFace"
sketch20.AttachmentOffset = App.Placement(Vector(0, 0, -20), App.Rotation())
add_polygon(sketch20, [(-183, 69), (-183, -31), (-63, -31), (-63, 69)])
sketch20.addConstraint([
    Sketcher.Constraint("Vertical", 0),
    Sketcher.Constraint("Horizontal", 1),
    Sketcher.Constraint("Vertical", 2),
    Sketcher.Constraint("Horizontal", 3),
    Sketcher.Constraint("DistanceX", 1, 1, 1, 2, 120.0),
    Sketcher.Constraint("DistanceY", 0, 2, 0, 1, 100.0),
    Sketcher.Constraint("DistanceX", 0, 2, -1, 1, 183.1),
    Sketcher.Constraint("DistanceY", 0, 2, -1, 1, 31.3),
])
pad20 = doc.addObject("PartDesign::Pad", "Pad019")
body22.addObject(pad20)
pad20.Profile = sketch20
pad20.Length = 70
doc.recompute()

boolean18 = doc.addObject("PartDesign::Boolean", "Boolean017")
body22.addObject(boolean18)
boolean18.Type = "Fuse"
boolean18.addObjects([body21])
doc.recompute()

boolean19 = doc.addObject("PartDesign::Boolean", "Boolean018")
body22.addObject(boolean19)
boolean19.Type = "Cut"
boolean19.addObjects([body19])
doc.recompute()

boolean20 = doc.addObject("PartDesign::Boolean", "Boolean019")
body22.addObject(boolean20)
boolean20.Type = "Cut"
boolean20.addObjects([body2])
doc.recompute()

boolean21 = doc.addObject("PartDesign::Boolean", "Boolean020")
body22.addObject(boolean21)
boolean21.Type = "Cut"
boolean21.addObjects([body])

doc.recompute()
